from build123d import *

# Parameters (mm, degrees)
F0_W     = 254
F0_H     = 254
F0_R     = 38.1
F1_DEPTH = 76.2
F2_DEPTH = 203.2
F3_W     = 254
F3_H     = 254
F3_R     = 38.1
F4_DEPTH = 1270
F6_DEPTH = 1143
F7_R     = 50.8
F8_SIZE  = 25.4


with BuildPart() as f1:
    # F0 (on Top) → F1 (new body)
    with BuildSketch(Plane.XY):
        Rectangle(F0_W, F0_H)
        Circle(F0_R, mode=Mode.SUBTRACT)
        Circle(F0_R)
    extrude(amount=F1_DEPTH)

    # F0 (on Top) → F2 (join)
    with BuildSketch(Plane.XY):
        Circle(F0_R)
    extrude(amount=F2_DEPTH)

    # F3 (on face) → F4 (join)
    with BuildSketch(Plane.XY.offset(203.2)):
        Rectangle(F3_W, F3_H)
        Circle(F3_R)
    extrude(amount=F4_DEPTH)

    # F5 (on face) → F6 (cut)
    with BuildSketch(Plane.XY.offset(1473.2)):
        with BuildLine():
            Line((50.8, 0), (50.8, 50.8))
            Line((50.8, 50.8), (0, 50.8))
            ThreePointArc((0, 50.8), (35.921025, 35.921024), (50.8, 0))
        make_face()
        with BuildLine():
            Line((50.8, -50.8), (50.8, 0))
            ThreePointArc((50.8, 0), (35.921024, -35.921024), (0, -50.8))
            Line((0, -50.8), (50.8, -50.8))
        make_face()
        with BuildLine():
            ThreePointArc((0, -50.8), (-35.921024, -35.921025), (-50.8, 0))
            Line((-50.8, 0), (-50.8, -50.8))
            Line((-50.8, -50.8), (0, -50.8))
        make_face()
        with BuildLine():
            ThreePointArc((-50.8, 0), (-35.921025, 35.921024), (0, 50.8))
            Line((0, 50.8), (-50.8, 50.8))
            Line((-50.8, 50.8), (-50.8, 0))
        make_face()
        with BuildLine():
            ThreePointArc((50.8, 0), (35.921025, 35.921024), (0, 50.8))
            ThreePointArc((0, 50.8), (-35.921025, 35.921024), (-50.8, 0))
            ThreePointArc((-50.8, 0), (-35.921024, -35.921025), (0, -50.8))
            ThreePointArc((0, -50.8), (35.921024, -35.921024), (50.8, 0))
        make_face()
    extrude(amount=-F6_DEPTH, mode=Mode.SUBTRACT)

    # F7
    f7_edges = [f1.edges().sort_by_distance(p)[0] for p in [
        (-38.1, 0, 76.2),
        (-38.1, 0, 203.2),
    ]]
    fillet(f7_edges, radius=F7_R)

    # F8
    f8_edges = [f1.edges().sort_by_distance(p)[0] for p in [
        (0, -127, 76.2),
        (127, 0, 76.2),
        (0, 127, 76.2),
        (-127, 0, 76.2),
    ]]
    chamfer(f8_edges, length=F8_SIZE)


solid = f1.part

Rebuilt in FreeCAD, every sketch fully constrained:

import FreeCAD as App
import Part
import Sketcher

V = App.Vector
Q = App.Units.Quantity


def edges_at(feature, points):
    """Names of the edges that pass closest to the given points."""
    edges = feature.Shape.Edges
    near = lambda p: min(range(len(edges)), key=lambda i: edges[i].distToShape(Part.Vertex(*p))[0])
    return sorted({f"Edge{near(p) + 1}" for p in points})


def add_polygon(sketch, points):
    """Adds a closed chain of lines whose ends are joined by coincident constraints."""
    first, n = sketch.GeometryCount, len(points)
    for a, b in zip(points, points[1:] + points[:1]):
        sketch.addGeometry(Part.LineSegment(App.Vector(*a, 0), App.Vector(*b, 0)), False)
    for i in range(n):
        sketch.addConstraint(Sketcher.Constraint("Coincident", first + i, 2, first + (i + 1) % n, 1))

doc = App.newDocument("Part")
body = doc.addObject("PartDesign::Body", "Body")

sketch1 = body.newObject("Sketcher::SketchObject", "Sketch")
sketch1.AttachmentSupport = (doc.getObject("XY_Plane"), [""])
sketch1.MapMode = "FlatFace"
add_polygon(sketch1, [(-127, 127), (-127, -127), (127, -127), (127, 127)])
sketch1.addConstraint([
    Sketcher.Constraint("Vertical", 0),
    Sketcher.Constraint("Horizontal", 1),
    Sketcher.Constraint("Vertical", 2),
    Sketcher.Constraint("Horizontal", 3),
    Sketcher.Constraint("Symmetric", 0, 2, 2, 2, -1, 1),
    Sketcher.Constraint("Equal", 3, 0),
    Sketcher.Constraint("DistanceX", 1, 1, 1, 2, Q("10 in")),
])
pad1 = body.newObject("PartDesign::Pad", "Pad")
pad1.Profile = sketch1
pad1.Length = Q("3 in")

sketch2 = body.newObject("Sketcher::SketchObject", "Sketch001")
sketch2.AttachmentSupport = (doc.getObject("XY_Plane"), [""])
sketch2.MapMode = "FlatFace"
sketch2.addGeometry(Part.Circle(V(0, 0, 0), V(0, 0, 1), 38), False)
sketch2.addConstraint([
    Sketcher.Constraint("Coincident", 0, 3, -1, 1),
    Sketcher.Constraint("Diameter", 0, Q("3 in")),
])
pad2 = body.newObject("PartDesign::Pad", "Pad001")
pad2.Profile = sketch2
pad2.Length = Q("8 in")

sketch3 = body.newObject("Sketcher::SketchObject", "Sketch002")
sketch3.AttachmentSupport = (doc.getObject("XY_Plane"), [""])
sketch3.MapMode = "FlatFace"
sketch3.AttachmentOffset = App.Placement(V(0, 0, 8 * 25.4), App.Rotation())
add_polygon(sketch3, [(-127, 127), (-127, -127), (127, -127), (127, 127)])
sketch3.addConstraint([
    Sketcher.Constraint("Vertical", 0),
    Sketcher.Constraint("Horizontal", 1),
    Sketcher.Constraint("Vertical", 2),
    Sketcher.Constraint("Horizontal", 3),
    Sketcher.Constraint("Symmetric", 0, 2, 2, 2, -1, 1),
    Sketcher.Constraint("Equal", 3, 0),
    Sketcher.Constraint("DistanceX", 1, 1, 1, 2, Q("10 in")),
])
pad3 = body.newObject("PartDesign::Pad", "Pad002")
pad3.Profile = sketch3
pad3.Length = Q("50 in")

sketch4 = body.newObject("Sketcher::SketchObject", "Sketch003")
sketch4.AttachmentSupport = (doc.getObject("XY_Plane"), [""])
sketch4.MapMode = "FlatFace"
sketch4.AttachmentOffset = App.Placement(V(0, 0, 58 * 25.4), App.Rotation())
add_polygon(sketch4, [(51, 51), (-51, 51), (-51, -51), (51, -51)])
sketch4.addConstraint([
    Sketcher.Constraint("Horizontal", 0),
    Sketcher.Constraint("Vertical", 1),
    Sketcher.Constraint("Horizontal", 2),
    Sketcher.Constraint("Vertical", 3),
    Sketcher.Constraint("Symmetric", 0, 2, 2, 2, -1, 1),
    Sketcher.Constraint("Equal", 2, 1),
    Sketcher.Constraint("DistanceX", 0, 2, 0, 1, Q("4 in")),
])
pocket1 = body.newObject("PartDesign::Pocket", "Pocket")
pocket1.Profile = sketch4
pocket1.Length = Q("45 in")
doc.recompute()

fillet = body.newObject("PartDesign::Fillet", "Fillet")
fillet.Base = (pocket1, edges_at(pocket1, [(-38.1, 0, 76.2), (-38.1, 0, 203.2)]))
fillet.Radius = Q("2 in")
doc.recompute()

chamfer = body.newObject("PartDesign::Chamfer", "Chamfer")
chamfer.Base = (fillet, edges_at(fillet, [
    (0, -127, 76.2),
    (127, 0, 76.2),
    (0, 127, 76.2),
    (-127, 0, 76.2),
]))
chamfer.Size = Q("1 in")

doc.recompute()
